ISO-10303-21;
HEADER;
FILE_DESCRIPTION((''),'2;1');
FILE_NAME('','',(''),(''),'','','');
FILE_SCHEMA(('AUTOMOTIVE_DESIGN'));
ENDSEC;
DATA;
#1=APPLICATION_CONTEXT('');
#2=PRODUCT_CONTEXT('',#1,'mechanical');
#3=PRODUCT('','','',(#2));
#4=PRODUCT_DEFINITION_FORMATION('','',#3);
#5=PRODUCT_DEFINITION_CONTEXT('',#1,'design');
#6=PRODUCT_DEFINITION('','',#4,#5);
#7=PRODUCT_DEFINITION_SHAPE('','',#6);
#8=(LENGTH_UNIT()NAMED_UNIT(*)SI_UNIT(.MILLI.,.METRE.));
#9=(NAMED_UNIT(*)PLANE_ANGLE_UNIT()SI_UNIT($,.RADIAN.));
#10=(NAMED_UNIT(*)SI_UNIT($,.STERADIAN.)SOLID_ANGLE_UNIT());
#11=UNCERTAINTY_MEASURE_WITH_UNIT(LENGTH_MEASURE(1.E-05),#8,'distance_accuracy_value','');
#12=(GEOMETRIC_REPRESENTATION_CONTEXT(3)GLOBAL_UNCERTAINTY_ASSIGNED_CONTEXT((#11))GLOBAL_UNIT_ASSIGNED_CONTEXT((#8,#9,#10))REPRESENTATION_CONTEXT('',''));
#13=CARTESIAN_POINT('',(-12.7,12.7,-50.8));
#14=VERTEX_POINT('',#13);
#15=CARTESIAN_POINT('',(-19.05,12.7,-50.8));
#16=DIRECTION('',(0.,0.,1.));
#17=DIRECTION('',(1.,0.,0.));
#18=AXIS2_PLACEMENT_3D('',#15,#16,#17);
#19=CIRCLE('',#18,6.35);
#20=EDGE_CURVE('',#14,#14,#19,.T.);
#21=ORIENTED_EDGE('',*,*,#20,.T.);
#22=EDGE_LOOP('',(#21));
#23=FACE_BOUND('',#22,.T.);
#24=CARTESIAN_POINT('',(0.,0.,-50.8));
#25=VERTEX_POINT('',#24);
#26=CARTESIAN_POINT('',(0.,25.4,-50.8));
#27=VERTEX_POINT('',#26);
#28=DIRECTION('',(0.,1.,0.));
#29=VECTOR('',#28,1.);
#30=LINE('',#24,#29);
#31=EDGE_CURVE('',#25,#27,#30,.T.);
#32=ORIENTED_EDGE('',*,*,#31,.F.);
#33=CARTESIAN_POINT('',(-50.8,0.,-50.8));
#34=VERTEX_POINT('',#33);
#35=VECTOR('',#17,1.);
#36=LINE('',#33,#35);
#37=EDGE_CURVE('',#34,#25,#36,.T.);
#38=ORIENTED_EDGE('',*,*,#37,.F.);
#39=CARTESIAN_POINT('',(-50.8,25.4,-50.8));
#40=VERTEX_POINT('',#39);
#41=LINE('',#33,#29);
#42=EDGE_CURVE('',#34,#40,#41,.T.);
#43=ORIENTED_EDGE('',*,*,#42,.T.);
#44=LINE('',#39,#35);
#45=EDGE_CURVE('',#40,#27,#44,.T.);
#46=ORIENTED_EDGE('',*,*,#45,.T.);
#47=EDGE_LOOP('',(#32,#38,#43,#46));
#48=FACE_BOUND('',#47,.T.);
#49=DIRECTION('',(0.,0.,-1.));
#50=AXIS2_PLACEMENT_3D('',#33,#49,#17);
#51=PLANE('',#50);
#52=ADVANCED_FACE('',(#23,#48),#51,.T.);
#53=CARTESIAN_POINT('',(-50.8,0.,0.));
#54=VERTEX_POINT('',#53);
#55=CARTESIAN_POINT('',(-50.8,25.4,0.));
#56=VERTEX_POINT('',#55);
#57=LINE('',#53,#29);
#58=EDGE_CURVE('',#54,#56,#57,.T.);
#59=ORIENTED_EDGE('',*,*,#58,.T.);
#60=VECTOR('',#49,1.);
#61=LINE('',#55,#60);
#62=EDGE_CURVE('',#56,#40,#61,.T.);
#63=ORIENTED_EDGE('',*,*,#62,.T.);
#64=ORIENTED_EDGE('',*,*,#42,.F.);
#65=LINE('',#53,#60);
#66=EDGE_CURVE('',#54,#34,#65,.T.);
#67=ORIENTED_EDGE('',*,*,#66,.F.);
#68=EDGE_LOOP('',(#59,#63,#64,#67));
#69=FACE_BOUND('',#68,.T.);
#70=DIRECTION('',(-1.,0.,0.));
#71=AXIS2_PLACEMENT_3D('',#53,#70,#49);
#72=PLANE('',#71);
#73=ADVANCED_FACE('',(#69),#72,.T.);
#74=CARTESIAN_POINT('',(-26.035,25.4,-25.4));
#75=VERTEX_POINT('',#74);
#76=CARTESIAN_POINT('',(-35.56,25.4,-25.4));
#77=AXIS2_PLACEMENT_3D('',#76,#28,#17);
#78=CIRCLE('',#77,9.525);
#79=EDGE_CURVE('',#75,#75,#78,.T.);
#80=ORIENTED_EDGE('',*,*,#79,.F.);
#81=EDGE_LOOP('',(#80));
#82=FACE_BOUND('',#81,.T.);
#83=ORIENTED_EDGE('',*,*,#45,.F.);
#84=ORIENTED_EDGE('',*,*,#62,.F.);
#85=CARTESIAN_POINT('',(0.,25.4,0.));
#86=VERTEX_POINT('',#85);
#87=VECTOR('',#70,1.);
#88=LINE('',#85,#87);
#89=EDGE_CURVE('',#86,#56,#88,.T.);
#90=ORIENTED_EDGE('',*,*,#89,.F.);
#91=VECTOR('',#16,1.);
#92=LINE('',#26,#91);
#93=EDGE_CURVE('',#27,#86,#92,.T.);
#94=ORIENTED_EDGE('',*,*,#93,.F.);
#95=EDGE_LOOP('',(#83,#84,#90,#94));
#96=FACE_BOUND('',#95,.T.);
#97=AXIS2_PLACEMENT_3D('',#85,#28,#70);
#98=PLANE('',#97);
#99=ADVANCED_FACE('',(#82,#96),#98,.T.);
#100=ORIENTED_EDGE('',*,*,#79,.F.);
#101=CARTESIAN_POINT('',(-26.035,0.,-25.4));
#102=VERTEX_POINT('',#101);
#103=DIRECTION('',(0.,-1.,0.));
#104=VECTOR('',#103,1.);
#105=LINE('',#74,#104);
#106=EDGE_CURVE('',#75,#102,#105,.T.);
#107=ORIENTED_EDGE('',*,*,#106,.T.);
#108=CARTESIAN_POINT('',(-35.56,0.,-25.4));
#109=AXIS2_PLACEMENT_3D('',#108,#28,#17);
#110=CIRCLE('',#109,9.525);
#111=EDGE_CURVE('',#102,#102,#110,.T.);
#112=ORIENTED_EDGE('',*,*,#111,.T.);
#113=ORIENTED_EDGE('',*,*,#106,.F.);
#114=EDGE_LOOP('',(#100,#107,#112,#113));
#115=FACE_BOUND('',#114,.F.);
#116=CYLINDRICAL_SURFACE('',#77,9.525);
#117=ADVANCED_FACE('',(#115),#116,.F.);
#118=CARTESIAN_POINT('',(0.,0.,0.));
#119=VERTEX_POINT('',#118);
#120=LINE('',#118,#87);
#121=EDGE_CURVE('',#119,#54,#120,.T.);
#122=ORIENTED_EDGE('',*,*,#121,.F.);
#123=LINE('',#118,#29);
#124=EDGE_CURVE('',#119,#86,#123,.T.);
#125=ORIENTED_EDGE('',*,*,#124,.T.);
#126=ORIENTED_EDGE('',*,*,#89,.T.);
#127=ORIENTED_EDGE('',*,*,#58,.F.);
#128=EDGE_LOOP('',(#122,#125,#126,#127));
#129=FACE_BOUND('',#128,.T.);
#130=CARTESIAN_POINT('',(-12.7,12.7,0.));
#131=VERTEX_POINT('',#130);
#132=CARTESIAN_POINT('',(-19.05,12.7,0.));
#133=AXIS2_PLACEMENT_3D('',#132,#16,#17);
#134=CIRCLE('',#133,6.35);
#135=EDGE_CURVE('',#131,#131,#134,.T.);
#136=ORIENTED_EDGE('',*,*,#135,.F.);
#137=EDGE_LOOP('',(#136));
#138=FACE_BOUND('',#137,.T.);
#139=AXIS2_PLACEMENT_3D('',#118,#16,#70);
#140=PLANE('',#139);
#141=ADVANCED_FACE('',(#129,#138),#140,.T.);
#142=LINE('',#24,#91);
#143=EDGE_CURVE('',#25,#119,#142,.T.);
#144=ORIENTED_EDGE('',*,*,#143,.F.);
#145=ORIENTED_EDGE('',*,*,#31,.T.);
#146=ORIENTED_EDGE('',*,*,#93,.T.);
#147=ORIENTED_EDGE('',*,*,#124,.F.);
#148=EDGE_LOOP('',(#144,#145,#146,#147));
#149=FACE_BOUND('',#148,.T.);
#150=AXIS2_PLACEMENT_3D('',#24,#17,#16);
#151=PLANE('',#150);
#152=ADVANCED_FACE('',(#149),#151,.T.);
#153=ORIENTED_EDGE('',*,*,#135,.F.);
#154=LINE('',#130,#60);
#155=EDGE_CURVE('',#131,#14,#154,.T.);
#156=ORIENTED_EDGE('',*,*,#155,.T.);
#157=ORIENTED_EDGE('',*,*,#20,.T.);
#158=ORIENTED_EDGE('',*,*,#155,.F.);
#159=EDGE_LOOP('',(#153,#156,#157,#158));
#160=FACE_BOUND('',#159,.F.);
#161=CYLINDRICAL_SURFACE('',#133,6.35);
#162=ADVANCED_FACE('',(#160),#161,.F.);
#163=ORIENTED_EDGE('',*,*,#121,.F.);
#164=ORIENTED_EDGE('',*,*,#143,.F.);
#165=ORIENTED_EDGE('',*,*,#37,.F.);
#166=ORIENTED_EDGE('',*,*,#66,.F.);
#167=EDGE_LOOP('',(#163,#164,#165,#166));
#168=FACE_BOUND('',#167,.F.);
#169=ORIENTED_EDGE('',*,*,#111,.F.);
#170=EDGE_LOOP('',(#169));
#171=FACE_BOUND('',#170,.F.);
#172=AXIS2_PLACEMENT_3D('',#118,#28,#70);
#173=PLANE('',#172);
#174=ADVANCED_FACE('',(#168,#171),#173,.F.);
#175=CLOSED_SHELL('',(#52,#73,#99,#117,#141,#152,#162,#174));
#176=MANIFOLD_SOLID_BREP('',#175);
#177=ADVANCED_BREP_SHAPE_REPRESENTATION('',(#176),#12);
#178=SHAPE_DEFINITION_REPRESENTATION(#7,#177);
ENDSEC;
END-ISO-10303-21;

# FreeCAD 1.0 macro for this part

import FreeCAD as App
import Part
import Sketcher

V = App.Vector
Q = App.Units.Quantity


def add_polygon(sketch, points):
    """Adds a closed chain of lines whose ends are joined by coincident constraints."""
    first, n = sketch.GeometryCount, len(points)
    for a, b in zip(points, points[1:] + points[:1]):
        sketch.addGeometry(Part.LineSegment(App.Vector(*a, 0), App.Vector(*b, 0)), False)
    for i in range(n):
        sketch.addConstraint(Sketcher.Constraint("Coincident", first + i, 2, first + (i + 1) % n, 1))

doc = App.newDocument("Part")
body = doc.addObject("PartDesign::Body", "Body")

# Sketch on XZ plane
sketch1 = doc.addObject("Sketcher::SketchObject", "Sketch")
body.addObject(sketch1)
sketch1.AttachmentSupport = (doc.XZ_Plane, [""])
sketch1.MapMode = "FlatFace"
add_polygon(sketch1, [(-51, 0), (0, 0), (0, -51), (-51, -51)])  # lines 0-3
sketch1.addConstraint([
    Sketcher.Constraint("Horizontal", 0),
    Sketcher.Constraint("Vertical", 1),
    Sketcher.Constraint("Horizontal", 2),
    Sketcher.Constraint("Vertical", 3),
    Sketcher.Constraint("Coincident", 0, 2, -1, 1),
    Sketcher.Constraint("Equal", 2, 1),
    Sketcher.Constraint("DistanceX", 0, 1, 0, 2, Q("2 in")),
])
pad1 = doc.addObject("PartDesign::Pad", "Pad")
body.addObject(pad1)
pad1.Profile = sketch1
pad1.Length = Q("1 in")
pad1.Reversed = True

# Sketch on XY plane
sketch2 = doc.addObject("Sketcher::SketchObject", "Sketch001")
body.addObject(sketch2)
sketch2.AttachmentSupport = (doc.XY_Plane, [""])
sketch2.MapMode = "FlatFace"
sketch2.addGeometry(Part.Circle(V(-19, 13, 0), V(0, 0, 1), 6), False)
sketch2.addConstraint([
    Sketcher.Constraint("Diameter", 0, Q("0.5 in")),
    Sketcher.Constraint("DistanceY", -1, 1, 0, 3, Q("0.5 in")),
    Sketcher.Constraint("DistanceX", 0, 3, -1, 1, Q("0.75 in")),
])
pocket1 = doc.addObject("PartDesign::Pocket", "Pocket")
body.addObject(pocket1)
pocket1.Profile = sketch2
pocket1.Length = Q("2.625 in")

# Sketch on XZ plane
sketch3 = doc.addObject("Sketcher::SketchObject", "Sketch002")
body.addObject(sketch3)
sketch3.AttachmentSupport = (doc.XZ_Plane, [""])
sketch3.MapMode = "FlatFace"
sketch3.AttachmentOffset = App.Placement(V(0, 0, -1 * 25.4), App.Rotation())
sketch3.addGeometry(Part.Circle(V(-36, -25, 0), V(0, 0, 1), 10), False)
sketch3.addConstraint([
    Sketcher.Constraint("Diameter", 0, Q("0.75 in")),
    Sketcher.Constraint("DistanceY", 0, 3, -1, 1, Q("1 in")),
    Sketcher.Constraint("DistanceX", 0, 3, -1, 1, Q("1.4 in")),
])
pocket2 = doc.addObject("PartDesign::Pocket", "Pocket001")
body.addObject(pocket2)
pocket2.Profile = sketch3
pocket2.Length = Q("1.25 in")
pocket2.Reversed = True

doc.recompute()
